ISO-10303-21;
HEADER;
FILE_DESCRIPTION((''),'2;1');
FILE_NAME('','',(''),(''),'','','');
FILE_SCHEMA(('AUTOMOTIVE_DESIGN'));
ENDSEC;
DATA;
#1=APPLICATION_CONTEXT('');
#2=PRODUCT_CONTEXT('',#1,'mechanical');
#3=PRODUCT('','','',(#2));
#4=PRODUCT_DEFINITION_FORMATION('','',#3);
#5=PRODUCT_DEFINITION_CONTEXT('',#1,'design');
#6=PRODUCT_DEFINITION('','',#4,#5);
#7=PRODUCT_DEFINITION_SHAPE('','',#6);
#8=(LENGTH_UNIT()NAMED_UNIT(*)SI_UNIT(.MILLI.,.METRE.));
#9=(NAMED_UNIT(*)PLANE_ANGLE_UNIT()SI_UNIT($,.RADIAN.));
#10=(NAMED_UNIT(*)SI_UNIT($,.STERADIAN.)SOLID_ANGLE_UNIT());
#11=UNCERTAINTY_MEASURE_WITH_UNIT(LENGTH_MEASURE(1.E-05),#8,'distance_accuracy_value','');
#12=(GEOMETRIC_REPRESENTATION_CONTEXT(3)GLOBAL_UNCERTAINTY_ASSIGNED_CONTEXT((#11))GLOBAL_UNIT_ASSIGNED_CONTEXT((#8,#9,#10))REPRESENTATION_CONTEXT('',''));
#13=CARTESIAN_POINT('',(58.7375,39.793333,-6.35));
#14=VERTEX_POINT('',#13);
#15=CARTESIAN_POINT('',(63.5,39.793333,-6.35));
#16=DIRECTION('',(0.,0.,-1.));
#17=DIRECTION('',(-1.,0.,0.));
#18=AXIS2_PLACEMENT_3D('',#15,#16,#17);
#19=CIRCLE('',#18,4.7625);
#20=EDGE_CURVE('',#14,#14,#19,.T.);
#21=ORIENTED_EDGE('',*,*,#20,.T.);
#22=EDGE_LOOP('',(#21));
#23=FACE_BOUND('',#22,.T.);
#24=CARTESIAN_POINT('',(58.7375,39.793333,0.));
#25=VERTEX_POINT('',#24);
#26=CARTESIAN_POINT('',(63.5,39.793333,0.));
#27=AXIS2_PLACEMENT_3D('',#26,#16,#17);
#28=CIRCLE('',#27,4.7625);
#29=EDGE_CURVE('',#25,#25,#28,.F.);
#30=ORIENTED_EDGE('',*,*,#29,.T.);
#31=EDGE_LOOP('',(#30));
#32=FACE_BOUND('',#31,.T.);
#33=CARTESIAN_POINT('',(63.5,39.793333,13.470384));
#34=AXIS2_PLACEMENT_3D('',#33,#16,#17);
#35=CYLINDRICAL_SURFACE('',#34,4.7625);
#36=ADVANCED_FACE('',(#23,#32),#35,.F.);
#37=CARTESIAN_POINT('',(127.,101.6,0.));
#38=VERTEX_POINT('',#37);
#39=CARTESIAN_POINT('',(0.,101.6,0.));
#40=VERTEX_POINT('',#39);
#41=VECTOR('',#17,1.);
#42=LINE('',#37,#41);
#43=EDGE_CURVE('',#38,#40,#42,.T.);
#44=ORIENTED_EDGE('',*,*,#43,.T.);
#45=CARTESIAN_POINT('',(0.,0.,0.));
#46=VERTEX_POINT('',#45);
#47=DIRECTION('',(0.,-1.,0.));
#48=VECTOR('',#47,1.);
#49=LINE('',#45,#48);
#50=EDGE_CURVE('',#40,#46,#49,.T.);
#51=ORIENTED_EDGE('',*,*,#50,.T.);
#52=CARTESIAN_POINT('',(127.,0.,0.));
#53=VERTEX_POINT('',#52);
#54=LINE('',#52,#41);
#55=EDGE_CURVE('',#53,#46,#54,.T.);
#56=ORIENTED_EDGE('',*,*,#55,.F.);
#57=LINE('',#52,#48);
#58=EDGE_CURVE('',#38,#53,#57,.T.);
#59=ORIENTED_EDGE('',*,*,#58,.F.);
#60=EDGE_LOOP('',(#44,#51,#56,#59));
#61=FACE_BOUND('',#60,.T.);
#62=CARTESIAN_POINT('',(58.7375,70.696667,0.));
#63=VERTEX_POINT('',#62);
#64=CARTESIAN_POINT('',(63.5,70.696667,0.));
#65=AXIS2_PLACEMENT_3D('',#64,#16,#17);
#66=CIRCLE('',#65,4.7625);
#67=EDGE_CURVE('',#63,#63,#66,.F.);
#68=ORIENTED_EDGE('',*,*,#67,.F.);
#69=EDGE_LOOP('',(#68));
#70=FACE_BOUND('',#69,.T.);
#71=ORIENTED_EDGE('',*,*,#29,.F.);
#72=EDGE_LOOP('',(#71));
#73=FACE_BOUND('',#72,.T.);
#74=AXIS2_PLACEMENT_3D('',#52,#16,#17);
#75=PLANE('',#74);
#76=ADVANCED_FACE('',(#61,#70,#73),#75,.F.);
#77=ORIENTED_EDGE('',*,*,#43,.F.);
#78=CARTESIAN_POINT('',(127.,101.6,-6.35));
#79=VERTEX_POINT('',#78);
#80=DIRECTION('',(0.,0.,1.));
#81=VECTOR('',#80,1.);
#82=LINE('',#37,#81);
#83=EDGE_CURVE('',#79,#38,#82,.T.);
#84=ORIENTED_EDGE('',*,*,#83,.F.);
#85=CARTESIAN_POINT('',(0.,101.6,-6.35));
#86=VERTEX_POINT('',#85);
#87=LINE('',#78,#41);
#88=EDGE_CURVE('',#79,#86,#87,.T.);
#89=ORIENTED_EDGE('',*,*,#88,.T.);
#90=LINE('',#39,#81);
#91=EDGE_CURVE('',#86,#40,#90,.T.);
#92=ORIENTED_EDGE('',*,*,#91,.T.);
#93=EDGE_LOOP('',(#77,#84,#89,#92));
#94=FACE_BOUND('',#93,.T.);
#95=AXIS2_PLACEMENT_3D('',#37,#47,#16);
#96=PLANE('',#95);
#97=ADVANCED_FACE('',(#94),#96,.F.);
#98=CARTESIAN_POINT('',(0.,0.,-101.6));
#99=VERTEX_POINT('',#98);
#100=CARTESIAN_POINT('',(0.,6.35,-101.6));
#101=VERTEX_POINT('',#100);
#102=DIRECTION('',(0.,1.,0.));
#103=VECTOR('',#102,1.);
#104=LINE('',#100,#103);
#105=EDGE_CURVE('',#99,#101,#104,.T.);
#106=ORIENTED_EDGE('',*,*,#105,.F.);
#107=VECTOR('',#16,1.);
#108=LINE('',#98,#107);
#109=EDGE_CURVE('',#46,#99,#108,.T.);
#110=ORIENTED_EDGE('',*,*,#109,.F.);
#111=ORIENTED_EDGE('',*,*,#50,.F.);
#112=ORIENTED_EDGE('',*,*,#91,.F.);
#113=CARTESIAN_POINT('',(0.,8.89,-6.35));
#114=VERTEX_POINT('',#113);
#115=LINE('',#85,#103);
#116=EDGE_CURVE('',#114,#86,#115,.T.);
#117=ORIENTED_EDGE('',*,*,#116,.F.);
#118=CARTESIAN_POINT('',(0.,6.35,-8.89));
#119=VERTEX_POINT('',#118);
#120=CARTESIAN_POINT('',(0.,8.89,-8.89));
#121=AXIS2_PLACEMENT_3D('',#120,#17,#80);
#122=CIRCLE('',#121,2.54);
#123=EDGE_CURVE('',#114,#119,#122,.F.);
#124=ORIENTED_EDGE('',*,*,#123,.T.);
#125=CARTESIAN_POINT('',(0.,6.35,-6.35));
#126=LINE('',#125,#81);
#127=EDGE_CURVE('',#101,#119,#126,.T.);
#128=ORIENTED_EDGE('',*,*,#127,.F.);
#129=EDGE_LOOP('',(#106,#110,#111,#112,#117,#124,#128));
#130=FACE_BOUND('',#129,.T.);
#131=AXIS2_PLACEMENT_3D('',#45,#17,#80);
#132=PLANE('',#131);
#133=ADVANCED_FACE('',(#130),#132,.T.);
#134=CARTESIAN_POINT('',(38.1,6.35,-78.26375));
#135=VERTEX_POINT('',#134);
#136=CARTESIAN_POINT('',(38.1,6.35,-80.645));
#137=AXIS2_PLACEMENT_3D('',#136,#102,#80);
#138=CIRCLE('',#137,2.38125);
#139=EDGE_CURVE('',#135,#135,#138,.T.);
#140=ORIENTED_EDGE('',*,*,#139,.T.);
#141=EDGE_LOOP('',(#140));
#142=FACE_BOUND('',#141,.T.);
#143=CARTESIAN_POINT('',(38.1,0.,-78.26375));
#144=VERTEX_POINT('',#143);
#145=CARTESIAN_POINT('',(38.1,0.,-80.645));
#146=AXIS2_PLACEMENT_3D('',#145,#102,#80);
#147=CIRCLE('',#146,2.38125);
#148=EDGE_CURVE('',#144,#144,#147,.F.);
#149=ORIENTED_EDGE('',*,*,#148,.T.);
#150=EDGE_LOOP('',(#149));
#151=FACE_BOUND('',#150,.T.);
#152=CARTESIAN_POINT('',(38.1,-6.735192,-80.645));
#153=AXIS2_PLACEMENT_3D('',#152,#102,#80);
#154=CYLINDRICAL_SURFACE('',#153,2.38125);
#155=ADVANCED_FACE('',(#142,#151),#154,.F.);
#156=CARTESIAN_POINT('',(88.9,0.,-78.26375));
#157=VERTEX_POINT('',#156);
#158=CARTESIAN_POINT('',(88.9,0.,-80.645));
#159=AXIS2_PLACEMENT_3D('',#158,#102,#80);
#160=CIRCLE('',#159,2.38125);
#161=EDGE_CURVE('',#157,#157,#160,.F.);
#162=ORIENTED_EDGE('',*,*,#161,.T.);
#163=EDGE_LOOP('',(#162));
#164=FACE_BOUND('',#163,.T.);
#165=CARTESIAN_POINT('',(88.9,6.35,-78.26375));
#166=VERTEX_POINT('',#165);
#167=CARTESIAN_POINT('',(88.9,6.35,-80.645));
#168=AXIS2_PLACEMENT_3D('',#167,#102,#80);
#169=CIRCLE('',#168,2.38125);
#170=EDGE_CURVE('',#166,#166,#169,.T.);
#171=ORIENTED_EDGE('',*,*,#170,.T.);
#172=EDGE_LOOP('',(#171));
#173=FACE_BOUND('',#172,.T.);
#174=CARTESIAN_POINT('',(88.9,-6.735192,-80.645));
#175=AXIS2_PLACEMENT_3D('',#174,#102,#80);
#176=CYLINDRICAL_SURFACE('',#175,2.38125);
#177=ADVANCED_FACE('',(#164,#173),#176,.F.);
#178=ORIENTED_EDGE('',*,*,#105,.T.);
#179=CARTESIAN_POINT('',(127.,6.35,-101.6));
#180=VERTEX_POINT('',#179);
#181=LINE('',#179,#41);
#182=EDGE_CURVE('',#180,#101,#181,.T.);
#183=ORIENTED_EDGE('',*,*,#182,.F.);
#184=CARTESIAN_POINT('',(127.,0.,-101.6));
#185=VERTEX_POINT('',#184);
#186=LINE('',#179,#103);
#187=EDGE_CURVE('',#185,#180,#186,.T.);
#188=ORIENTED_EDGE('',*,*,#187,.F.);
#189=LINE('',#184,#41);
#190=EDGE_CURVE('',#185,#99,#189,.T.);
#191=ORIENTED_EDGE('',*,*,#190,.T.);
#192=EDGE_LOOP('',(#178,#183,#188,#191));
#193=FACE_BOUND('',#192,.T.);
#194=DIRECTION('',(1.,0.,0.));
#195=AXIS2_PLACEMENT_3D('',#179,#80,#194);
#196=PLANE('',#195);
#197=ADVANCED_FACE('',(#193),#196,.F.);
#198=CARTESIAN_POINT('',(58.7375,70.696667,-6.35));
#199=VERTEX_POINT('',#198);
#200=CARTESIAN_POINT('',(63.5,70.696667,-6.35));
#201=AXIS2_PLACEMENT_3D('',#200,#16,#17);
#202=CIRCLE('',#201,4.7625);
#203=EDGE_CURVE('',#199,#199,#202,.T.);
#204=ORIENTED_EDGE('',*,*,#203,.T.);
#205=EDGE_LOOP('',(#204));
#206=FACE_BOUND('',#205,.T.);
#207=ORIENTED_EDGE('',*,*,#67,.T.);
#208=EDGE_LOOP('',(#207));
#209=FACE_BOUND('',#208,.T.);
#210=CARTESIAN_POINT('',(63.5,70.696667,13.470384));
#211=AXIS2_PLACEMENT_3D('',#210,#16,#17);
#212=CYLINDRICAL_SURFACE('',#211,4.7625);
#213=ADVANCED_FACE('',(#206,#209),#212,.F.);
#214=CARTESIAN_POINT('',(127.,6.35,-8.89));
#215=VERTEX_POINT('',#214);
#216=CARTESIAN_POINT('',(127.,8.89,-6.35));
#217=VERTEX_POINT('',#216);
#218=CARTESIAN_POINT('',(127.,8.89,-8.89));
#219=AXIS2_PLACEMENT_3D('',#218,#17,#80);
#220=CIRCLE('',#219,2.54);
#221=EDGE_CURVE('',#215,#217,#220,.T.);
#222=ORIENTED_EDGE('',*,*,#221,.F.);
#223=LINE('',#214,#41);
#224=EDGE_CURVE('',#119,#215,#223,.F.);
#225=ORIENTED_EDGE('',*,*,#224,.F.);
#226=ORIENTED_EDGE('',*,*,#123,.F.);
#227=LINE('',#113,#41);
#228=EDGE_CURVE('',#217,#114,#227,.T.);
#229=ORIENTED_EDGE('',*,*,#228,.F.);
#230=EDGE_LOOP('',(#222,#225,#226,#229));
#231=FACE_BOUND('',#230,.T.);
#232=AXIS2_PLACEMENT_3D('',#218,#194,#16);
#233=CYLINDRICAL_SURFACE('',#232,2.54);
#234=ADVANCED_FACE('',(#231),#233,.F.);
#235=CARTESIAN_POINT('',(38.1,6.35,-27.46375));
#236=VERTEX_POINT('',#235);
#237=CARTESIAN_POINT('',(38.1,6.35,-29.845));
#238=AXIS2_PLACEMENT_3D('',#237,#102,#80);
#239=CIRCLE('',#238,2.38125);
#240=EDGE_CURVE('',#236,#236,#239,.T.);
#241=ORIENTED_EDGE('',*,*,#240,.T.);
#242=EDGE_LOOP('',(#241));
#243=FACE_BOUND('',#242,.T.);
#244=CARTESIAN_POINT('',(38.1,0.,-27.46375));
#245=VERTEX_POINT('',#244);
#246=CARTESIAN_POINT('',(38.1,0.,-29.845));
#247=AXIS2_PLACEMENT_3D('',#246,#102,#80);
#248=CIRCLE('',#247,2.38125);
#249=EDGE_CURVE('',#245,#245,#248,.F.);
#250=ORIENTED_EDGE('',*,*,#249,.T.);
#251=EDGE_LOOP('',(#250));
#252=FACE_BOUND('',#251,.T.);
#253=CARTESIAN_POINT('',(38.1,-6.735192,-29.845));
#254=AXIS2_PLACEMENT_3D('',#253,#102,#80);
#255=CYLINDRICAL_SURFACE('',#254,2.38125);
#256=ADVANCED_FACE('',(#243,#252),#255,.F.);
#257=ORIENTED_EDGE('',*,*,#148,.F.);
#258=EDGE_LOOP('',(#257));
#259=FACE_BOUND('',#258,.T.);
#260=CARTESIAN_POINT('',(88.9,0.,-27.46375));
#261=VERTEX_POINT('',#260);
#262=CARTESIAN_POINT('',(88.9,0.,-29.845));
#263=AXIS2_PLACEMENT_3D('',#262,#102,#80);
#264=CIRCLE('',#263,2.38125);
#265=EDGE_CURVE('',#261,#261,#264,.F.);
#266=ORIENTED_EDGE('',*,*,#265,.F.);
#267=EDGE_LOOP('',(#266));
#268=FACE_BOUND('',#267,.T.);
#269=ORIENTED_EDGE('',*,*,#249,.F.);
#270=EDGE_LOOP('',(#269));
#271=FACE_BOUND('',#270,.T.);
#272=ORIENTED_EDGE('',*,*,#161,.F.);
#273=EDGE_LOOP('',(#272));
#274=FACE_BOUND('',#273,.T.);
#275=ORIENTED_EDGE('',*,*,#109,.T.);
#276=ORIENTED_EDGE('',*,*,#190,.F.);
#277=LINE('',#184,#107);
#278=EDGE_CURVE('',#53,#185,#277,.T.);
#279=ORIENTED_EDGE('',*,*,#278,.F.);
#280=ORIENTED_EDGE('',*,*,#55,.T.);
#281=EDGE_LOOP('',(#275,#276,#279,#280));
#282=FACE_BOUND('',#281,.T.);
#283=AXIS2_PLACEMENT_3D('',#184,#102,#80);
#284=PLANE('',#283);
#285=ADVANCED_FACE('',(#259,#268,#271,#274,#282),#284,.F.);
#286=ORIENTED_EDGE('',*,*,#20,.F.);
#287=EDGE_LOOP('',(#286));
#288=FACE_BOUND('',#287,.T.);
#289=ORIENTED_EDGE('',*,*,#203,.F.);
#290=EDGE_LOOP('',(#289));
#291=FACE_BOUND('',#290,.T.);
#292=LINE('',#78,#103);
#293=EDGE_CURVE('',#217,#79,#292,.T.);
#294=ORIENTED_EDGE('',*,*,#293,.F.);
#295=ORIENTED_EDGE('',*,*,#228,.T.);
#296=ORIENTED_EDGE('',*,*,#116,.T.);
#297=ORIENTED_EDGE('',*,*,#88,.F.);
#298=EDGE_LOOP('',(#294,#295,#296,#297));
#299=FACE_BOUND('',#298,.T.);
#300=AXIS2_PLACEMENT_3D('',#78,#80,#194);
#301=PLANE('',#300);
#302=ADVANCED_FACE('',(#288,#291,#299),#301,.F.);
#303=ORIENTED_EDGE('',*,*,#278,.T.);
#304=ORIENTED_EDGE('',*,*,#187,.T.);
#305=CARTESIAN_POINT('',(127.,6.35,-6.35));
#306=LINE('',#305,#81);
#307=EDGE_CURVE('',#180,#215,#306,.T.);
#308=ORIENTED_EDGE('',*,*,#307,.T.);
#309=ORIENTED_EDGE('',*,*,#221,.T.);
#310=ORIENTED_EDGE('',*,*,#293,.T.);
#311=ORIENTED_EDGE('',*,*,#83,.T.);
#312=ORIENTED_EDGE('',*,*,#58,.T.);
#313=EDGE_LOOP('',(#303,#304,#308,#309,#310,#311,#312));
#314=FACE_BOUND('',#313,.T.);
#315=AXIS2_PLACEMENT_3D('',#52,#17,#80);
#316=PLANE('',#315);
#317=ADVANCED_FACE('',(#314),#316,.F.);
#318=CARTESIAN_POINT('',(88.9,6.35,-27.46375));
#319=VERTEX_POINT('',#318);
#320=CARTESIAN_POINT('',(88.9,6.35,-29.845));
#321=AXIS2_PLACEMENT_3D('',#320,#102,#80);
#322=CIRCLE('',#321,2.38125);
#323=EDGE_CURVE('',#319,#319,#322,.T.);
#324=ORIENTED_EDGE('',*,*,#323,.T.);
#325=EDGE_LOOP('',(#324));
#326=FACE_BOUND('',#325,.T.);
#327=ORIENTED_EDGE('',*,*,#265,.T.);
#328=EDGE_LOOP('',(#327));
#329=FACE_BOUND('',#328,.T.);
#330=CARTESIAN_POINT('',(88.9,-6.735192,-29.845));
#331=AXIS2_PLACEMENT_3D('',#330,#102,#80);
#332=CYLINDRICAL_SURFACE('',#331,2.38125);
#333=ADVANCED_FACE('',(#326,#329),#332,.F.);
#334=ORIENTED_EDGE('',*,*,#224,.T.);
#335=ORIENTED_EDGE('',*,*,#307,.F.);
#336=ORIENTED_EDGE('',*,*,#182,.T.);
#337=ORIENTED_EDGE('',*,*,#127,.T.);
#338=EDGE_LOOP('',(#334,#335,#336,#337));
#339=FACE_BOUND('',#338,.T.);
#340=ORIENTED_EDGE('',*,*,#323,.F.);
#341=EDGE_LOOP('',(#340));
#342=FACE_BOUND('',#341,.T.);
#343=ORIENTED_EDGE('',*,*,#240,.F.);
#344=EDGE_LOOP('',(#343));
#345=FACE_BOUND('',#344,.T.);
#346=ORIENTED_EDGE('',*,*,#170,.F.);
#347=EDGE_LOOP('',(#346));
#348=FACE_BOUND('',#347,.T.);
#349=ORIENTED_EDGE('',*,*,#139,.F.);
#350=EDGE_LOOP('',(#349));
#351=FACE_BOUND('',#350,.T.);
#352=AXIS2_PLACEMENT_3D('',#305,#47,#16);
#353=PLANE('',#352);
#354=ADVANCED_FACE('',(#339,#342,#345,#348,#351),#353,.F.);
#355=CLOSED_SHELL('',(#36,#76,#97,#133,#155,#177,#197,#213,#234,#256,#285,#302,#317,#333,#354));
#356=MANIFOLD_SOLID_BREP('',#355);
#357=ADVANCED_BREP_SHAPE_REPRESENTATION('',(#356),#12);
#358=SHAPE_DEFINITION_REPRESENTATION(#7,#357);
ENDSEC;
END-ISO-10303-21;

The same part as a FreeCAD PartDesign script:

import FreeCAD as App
import Part
import Sketcher
from FreeCAD import Vector
Q = App.Units.Quantity


def edges_at(feature, points):
    """Names of the edges that pass closest to the given points."""
    edges = feature.Shape.Edges
    near = lambda p: min(range(len(edges)), key=lambda i: edges[i].distToShape(Part.Vertex(*p))[0])
    return sorted({f"Edge{near(p) + 1}" for p in points})

doc = App.newDocument("Part")
body = doc.addObject("PartDesign::Body", "Body")

sketch1 = doc.addObject("Sketcher::SketchObject", "Sketch")
body.addObject(sketch1)
sketch1.AttachmentSupport = (doc.YZ_Plane, [""])
sketch1.MapMode = "FlatFace"
sketch1.addGeometry([
    Part.LineSegment(Vector(102, 0, 0), Vector(0, 0, 0)),
    Part.LineSegment(Vector(0, 0, 0), Vector(0, -102, 0)),
    Part.LineSegment(Vector(0, -102, 0), Vector(6, -102, 0)),
    Part.LineSegment(Vector(6, -102, 0), Vector(6, -6, 0)),
    Part.LineSegment(Vector(6, -6, 0), Vector(102, -6, 0)),
    Part.LineSegment(Vector(102, -6, 0), Vector(102, 0, 0)),
], False)
sketch1.addConstraint([
    Sketcher.Constraint("Coincident", 0, 2, 1, 1),
    Sketcher.Constraint("Coincident", 1, 2, 2, 1),
    Sketcher.Constraint("Coincident", 2, 2, 3, 1),
    Sketcher.Constraint("Coincident", 3, 2, 4, 1),
    Sketcher.Constraint("Coincident", 4, 2, 5, 1),
    Sketcher.Constraint("Coincident", 5, 2, 0, 1),
    Sketcher.Constraint("Horizontal", 0),
    Sketcher.Constraint("Vertical", 1),
    Sketcher.Constraint("Horizontal", 2),
    Sketcher.Constraint("Vertical", 3),
    Sketcher.Constraint("Horizontal", 4),
    Sketcher.Constraint("Vertical", 5),
    Sketcher.Constraint("Coincident", 0, 2, -1, 1),
    Sketcher.Constraint("Equal", 0, 1),
    Sketcher.Constraint("Equal", 4, 3),
    Sketcher.Constraint("DistanceX", 0, 2, 0, 1, Q("4 in")),
    Sketcher.Constraint("DistanceX", 2, 1, 2, 2, Q("0.25 in")),
])
pad1 = doc.addObject("PartDesign::Pad", "Pad")
body.addObject(pad1)
pad1.Profile = sketch1
pad1.Length = Q("5 in")
doc.recompute()

fillet = doc.addObject("PartDesign::Fillet", "Fillet")
body.addObject(fillet)
fillet.Base = (pad1, edges_at(pad1, [(63.5, 6.35, -6.35)]))
fillet.Radius = Q("0.1 in")

sketch2 = doc.addObject("Sketcher::SketchObject", "Sketch001")
body.addObject(sketch2)
sketch2.AttachmentSupport = (doc.XY_Plane, [""])
sketch2.MapMode = "FlatFace"
sketch2.AttachmentOffset = App.Placement(Vector(0, 0, -0.25 * 25.4), App.Rotation())
sketch2.addGeometry([
    Part.Circle(Vector(63.5, 70.7, 0), Vector(0, 0, 1), 4.8),
    Part.Circle(Vector(63.5, 39.8, 0), Vector(0, 0, 1), 4.8),
], False)
sketch2.addConstraint([
    Sketcher.Constraint("Equal", 0, 1),
    Sketcher.Constraint("Vertical", 0, 3, 1, 3),
    Sketcher.Constraint("Diameter", 0, Q("0.375 in")),
    Sketcher.Constraint("DistanceX", -1, 1, 0, 3, Q("2.5 in")),
    Sketcher.Constraint("DistanceY", -1, 1, 0, 3, 70.696667),
    Sketcher.Constraint("DistanceY", -1, 1, 1, 3, 39.793333),
])
pocket1 = doc.addObject("PartDesign::Pocket", "Pocket")
body.addObject(pocket1)
pocket1.Profile = sketch2
pocket1.Length = Q("0.25 in")
pocket1.Reversed = True

sketch3 = doc.addObject("Sketcher::SketchObject", "Sketch002")
body.addObject(sketch3)
sketch3.AttachmentSupport = (doc.XZ_Plane, [""])
sketch3.MapMode = "FlatFace"
sketch3.AttachmentOffset = App.Placement(Vector(0, 0, -0.25 * 25.4), App.Rotation())
sketch3.addGeometry([
    Part.Circle(Vector(38.1, -80.6, 0), Vector(0, 0, 1), 2.4),
    Part.Circle(Vector(88.9, -80.6, 0), Vector(0, 0, 1), 2.4),
    Part.Circle(Vector(38.1, -29.8, 0), Vector(0, 0, 1), 2.4),
    Part.Circle(Vector(88.9, -29.8, 0), Vector(0, 0, 1), 2.4),
], False)
sketch3.addConstraint([
    Sketcher.Constraint("Equal", 0, 1),
    Sketcher.Constraint("Equal", 1, 2),
    Sketcher.Constraint("Equal", 2, 3),
    Sketcher.Constraint("Horizontal", 0, 3, 1, 3),
    Sketcher.Constraint("Horizontal", 2, 3, 3, 3),
    Sketcher.Constraint("Vertical", 0, 3, 2, 3),
    Sketcher.Constraint("Vertical", 1, 3, 3, 3),
    Sketcher.Constraint("Diameter", 0, Q("0.1875 in")),
    Sketcher.Constraint("DistanceX", 0, 3, 1, 3, Q("2 in")),
    Sketcher.Constraint("DistanceY", 0, 3, 2, 3, Q("2 in")),
    Sketcher.Constraint("DistanceX", -1, 1, 0, 3, Q("1.5 in")),
    Sketcher.Constraint("DistanceY", 0, 3, -1, 1, Q("3.175 in")),
])
pocket2 = doc.addObject("PartDesign::Pocket", "Pocket001")
body.addObject(pocket2)
pocket2.Profile = sketch3
pocket2.Length = Q("0.25 in")
pocket2.Reversed = True

doc.recompute()
